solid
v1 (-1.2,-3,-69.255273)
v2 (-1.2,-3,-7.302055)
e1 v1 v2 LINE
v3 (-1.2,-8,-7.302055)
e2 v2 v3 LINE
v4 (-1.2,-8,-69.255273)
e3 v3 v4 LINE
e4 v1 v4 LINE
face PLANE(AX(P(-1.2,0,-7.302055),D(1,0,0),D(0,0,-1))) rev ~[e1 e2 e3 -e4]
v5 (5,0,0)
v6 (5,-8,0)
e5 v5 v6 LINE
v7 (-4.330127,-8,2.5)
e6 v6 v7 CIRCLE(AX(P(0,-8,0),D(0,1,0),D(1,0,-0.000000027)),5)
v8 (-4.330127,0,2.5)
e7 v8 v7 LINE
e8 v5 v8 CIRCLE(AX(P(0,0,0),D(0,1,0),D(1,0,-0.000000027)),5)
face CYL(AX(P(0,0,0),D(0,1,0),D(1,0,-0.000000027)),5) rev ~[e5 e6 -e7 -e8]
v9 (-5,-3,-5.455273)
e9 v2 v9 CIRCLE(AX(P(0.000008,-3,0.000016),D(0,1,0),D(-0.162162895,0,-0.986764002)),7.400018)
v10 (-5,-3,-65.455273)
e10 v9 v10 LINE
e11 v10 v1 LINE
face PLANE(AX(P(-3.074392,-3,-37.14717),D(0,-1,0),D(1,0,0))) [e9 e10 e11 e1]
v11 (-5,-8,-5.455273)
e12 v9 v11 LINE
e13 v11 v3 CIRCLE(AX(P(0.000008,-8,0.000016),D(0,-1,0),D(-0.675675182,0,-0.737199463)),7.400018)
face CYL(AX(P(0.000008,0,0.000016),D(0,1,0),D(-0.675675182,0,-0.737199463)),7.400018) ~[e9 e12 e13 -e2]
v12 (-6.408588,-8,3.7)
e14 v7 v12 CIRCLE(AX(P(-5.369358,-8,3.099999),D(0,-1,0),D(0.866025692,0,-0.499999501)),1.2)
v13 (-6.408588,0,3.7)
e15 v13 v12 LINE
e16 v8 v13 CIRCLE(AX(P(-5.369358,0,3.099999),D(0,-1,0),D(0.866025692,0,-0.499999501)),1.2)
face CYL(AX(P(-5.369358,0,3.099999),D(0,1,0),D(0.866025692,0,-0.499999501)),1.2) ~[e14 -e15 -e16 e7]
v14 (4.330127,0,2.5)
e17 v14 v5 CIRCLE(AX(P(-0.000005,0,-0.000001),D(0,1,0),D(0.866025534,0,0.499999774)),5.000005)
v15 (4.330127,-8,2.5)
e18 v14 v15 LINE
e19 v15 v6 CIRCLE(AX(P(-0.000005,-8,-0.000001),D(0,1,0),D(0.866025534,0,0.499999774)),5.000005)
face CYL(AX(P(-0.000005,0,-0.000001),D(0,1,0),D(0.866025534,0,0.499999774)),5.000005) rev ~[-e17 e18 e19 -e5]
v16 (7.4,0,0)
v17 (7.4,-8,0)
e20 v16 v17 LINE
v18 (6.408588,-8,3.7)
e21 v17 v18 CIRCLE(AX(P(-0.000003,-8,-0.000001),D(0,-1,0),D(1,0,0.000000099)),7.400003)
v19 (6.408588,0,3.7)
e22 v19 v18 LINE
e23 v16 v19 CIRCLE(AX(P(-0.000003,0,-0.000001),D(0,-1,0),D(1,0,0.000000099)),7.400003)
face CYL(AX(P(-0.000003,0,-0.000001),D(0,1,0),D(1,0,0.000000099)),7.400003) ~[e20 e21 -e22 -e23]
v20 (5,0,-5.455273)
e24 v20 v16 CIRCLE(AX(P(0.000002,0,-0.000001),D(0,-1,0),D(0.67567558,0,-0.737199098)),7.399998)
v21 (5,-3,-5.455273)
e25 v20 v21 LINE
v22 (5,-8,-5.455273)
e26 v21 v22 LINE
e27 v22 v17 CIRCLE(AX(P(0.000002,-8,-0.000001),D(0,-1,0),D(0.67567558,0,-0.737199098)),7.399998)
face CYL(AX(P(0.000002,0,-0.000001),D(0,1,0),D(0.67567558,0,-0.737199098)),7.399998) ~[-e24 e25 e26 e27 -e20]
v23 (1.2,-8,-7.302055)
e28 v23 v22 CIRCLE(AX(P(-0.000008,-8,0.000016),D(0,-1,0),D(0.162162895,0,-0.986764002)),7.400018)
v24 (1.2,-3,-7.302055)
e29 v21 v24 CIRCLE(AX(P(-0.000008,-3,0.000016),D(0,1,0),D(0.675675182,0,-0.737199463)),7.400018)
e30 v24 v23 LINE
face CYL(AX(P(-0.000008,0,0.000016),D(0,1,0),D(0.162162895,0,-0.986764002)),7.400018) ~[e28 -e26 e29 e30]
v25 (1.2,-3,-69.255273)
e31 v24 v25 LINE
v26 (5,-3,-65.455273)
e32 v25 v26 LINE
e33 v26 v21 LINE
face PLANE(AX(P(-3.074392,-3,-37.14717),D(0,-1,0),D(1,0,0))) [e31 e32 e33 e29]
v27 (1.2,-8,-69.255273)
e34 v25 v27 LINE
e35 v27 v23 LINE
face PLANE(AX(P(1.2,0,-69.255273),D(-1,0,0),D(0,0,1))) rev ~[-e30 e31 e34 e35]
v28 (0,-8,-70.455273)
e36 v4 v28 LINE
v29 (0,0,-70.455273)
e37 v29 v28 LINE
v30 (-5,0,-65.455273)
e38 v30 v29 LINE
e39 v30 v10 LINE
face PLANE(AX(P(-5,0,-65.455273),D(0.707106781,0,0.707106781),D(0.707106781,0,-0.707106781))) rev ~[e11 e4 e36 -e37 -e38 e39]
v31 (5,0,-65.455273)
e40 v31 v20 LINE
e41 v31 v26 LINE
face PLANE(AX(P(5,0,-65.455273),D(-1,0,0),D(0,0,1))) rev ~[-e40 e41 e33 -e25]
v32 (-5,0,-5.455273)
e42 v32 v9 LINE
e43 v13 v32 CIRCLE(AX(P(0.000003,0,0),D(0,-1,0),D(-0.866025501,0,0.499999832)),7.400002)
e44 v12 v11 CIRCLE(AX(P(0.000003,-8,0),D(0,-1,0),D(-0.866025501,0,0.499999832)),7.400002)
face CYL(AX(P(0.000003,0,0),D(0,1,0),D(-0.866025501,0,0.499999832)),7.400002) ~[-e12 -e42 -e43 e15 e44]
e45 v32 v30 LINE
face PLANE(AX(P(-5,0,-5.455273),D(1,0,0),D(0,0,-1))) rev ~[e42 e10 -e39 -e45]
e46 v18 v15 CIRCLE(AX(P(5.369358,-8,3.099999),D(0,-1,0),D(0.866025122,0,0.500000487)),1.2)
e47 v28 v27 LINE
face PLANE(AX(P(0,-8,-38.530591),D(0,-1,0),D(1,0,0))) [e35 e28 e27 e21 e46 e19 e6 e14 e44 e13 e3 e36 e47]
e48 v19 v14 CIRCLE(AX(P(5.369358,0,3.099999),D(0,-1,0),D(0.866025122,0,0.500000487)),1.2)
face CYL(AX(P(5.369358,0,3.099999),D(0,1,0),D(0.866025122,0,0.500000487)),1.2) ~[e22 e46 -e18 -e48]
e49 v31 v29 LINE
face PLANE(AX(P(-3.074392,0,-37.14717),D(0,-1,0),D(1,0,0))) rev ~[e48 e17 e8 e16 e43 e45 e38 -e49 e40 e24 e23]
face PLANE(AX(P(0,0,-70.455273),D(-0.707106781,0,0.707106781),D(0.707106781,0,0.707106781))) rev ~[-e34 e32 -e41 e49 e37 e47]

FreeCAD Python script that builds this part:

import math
import FreeCAD as App
import Part
import Sketcher

V = App.Vector

doc = App.newDocument("Part")
body = doc.addObject("PartDesign::Body", "Body")

sketch1 = body.newObject("Sketcher::SketchObject", "Sketch")
sketch1.AttachmentSupport = (doc.getObject("XZ_Plane"), [""])
sketch1.MapMode = "FlatFace"
sketch1.addGeometry(Part.ArcOfCircle(Part.Circle(V(-0.000005, -0.000001, 0), V(0, 0, 1), 5.000005), math.radians(0.000016), math.radians(29.999985)), False)
sketch1.addGeometry(Part.ArcOfCircle(Part.Circle(V(0, 0, 0), V(0, 0, 1), 5), math.radians(150.000001), math.radians(359.999998)), False)
sketch1.addGeometry(Part.ArcOfCircle(Part.Circle(V(-5.369358, 3.099999, 0), V(0, 0, 1), 1.2), math.radians(-29.999967), math.radians(149.999968)), False)
sketch1.addGeometry(Part.ArcOfCircle(Part.Circle(V(0.000003, 0, 0), V(0, 0, 1), 7.400002), math.radians(150.000011), math.radians(227.493346)), False)
sketch1.addGeometry(Part.ArcOfCircle(Part.Circle(V(0.000008, 0.000016, 0), V(0, 0, 1), 7.400018), math.radians(-132.506604), math.radians(-99.332461)), False)
sketch1.addGeometry(Part.ArcOfCircle(Part.Circle(V(0, 0.000037, 0), V(0, 0, 1), 7.400037), math.radians(-99.332371), math.radians(-80.667629)), False)
sketch1.addGeometry(Part.ArcOfCircle(Part.Circle(V(-0.000008, 0.000016, 0), V(0, 0, 1), 7.400018), math.radians(-80.667539), math.radians(-47.493396)), False)
sketch1.addGeometry(Part.ArcOfCircle(Part.Circle(V(0.000002, -0.000001, 0), V(0, 0, 1), 7.399998), math.radians(-47.493365), math.radians(0.00001)), False)
sketch1.addGeometry(Part.ArcOfCircle(Part.Circle(V(-0.000003, -0.000001, 0), V(0, 0, 1), 7.400003), math.radians(0.000006), math.radians(29.999994)), False)
sketch1.addGeometry(Part.ArcOfCircle(Part.Circle(V(5.369358, 3.099999, 0), V(0, 0, 1), 1.2), math.radians(30.000032), math.radians(209.999967)), False)
sketch1.addConstraint(Sketcher.Constraint("Coincident", 0, 1, 1, 2))
sketch1.addConstraint(Sketcher.Constraint("Coincident", 1, 1, 2, 1))
sketch1.addConstraint(Sketcher.Constraint("Coincident", 2, 2, 3, 1))
sketch1.addConstraint(Sketcher.Constraint("Coincident", 3, 2, 4, 1))
sketch1.addConstraint(Sketcher.Constraint("Coincident", 4, 2, 5, 1))
sketch1.addConstraint(Sketcher.Constraint("Coincident", 5, 2, 6, 1))
sketch1.addConstraint(Sketcher.Constraint("Coincident", 6, 2, 7, 1))
sketch1.addConstraint(Sketcher.Constraint("Coincident", 7, 2, 8, 1))
sketch1.addConstraint(Sketcher.Constraint("Coincident", 8, 2, 9, 1))
sketch1.addConstraint(Sketcher.Constraint("Coincident", 9, 2, 0, 2))
sketch1.addConstraint(Sketcher.Constraint("Coincident", 0, 3, -1, 1))
sketch1.addConstraint(Sketcher.Constraint("Coincident", 1, 3, -1, 1))
sketch1.addConstraint(Sketcher.Constraint("Coincident", 3, 3, -1, 1))
sketch1.addConstraint(Sketcher.Constraint("Coincident", 7, 3, -1, 1))
sketch1.addConstraint(Sketcher.Constraint("Coincident", 8, 3, -1, 1))
sketch1.addConstraint(Sketcher.Constraint("PointOnObject", 5, 3, -2))
sketch1.addConstraint(Sketcher.Constraint("PointOnObject", 0, 1, -1))
sketch1.addConstraint(Sketcher.Constraint("PointOnObject", 7, 2, -1))
sketch1.addConstraint(Sketcher.Constraint("Radius", 1, 5.0))
sketch1.addConstraint(Sketcher.Constraint("Radius", 2, 1.2))
sketch1.addConstraint(Sketcher.Constraint("Radius", 9, 1.2))
sketch1.addConstraint(Sketcher.Constraint("DistanceX", 3, 2, -1, 1, 5.0))
sketch1.addConstraint(Sketcher.Constraint("DistanceX", -1, 1, 6, 2, 5.0))
sketch1.addConstraint(Sketcher.Constraint("DistanceY", -1, 1, 2, 3, 3.099999))
sketch1.addConstraint(Sketcher.Constraint("DistanceY", -1, 1, 9, 3, 3.099999))
sketch1.addConstraint(Sketcher.Constraint("DistanceY", -1, 1, 1, 1, 2.5))
sketch1.addConstraint(Sketcher.Constraint("DistanceY", -1, 1, 2, 2, 3.7))
sketch1.addConstraint(Sketcher.Constraint("DistanceX", 4, 2, -1, 1, 1.2))
sketch1.addConstraint(Sketcher.Constraint("DistanceX", -1, 1, 5, 2, 1.2))
sketch1.addConstraint(Sketcher.Constraint("DistanceY", -1, 1, 8, 2, 3.7))
sketch1.addConstraint(Sketcher.Constraint("DistanceY", -1, 1, 9, 2, 2.5))
sketch1.addConstraint(Sketcher.Constraint("Radius", 4, 7.400018))
sketch1.addConstraint(Sketcher.Constraint("Radius", 5, 7.400037))
sketch1.addConstraint(Sketcher.Constraint("Radius", 6, 7.400018))
sketch1.addConstraint(Sketcher.Constraint("DistanceX", 4, 3, 9, 3, 5.36935))
pad1 = body.newObject("PartDesign::Pad", "Pad")
pad1.Profile = sketch1
pad1.Length = 8

sketch2 = body.newObject("Sketcher::SketchObject", "Sketch001")
sketch2.AttachmentSupport = (doc.getObject("XZ_Plane"), [""])
sketch2.MapMode = "FlatFace"
sketch2.addGeometry(Part.ArcOfCircle(Part.Circle(V(0, 0, 0), V(0, 0, 1), 7.4), math.radians(-133), math.radians(-99)), False)
sketch2.addGeometry(Part.LineSegment(V(-5, -5.5, 0), V(-5, -65.5, 0)), False)
sketch2.addGeometry(Part.LineSegment(V(-5, -65.5, 0), V(0, -70.5, 0)), False)
sketch2.addGeometry(Part.LineSegment(V(0, -70.5, 0), V(5, -65.5, 0)), False)
sketch2.addGeometry(Part.LineSegment(V(5, -65.5, 0), V(5, -5.5, 0)), False)
sketch2.addGeometry(Part.ArcOfCircle(Part.Circle(V(0, 0, 0), V(0, 0, 1), 7.4), math.radians(-81), math.radians(-47)), False)
sketch2.addGeometry(Part.ArcOfCircle(Part.Circle(V(0, 0, 0), V(0, 0, 1), 7.4), math.radians(-99.33), math.radians(-80.67)), False)
sketch2.addConstraint(Sketcher.Constraint("Coincident", 0, 1, 1, 1))
sketch2.addConstraint(Sketcher.Constraint("Coincident", 1, 2, 2, 1))
sketch2.addConstraint(Sketcher.Constraint("Coincident", 2, 2, 3, 1))
sketch2.addConstraint(Sketcher.Constraint("Coincident", 3, 2, 4, 1))
sketch2.addConstraint(Sketcher.Constraint("Coincident", 4, 2, 5, 2))
sketch2.addConstraint(Sketcher.Constraint("Tangent", 5, 1, 6, 2))
sketch2.addConstraint(Sketcher.Constraint("Tangent", 6, 1, 0, 2))
sketch2.addConstraint(Sketcher.Constraint("Vertical", 1))
sketch2.addConstraint(Sketcher.Constraint("Vertical", 4))
sketch2.addConstraint(Sketcher.Constraint("Equal", 0, 5))
sketch2.addConstraint(Sketcher.Constraint("Symmetric", 1, 2, 3, 2, -2))
sketch2.addConstraint(Sketcher.Constraint("Symmetric", 5, 1, 6, 1, -2))
sketch2.addConstraint(Sketcher.Constraint("PointOnObject", 2, 2, -2))
sketch2.addConstraint(Sketcher.Constraint("Perpendicular", 2, 3))
sketch2.addConstraint(Sketcher.Constraint("DistanceY", 1, 2, 1, 1, 60.0))
sketch2.addConstraint(Sketcher.Constraint("DistanceX", 0, 1, -1, 1, 5.0))
sketch2.addConstraint(Sketcher.Constraint("DistanceX", -1, 1, 5, 1, 1.2))
sketch2.addConstraint(Sketcher.Constraint("Radius", 0, 7.400018))
sketch2.addConstraint(Sketcher.Constraint("Radius", 6, 7.400037))
sketch2.addConstraint(Sketcher.Constraint("DistanceY", 0, 1, -1, 1, 5.455273))
pad2 = body.newObject("PartDesign::Pad", "Pad001")
pad2.Profile = sketch2
pad2.Length = 3

sketch3 = body.newObject("Sketcher::SketchObject", "Sketch002")
sketch3.AttachmentSupport = (doc.getObject("XZ_Plane"), [""])
sketch3.MapMode = "FlatFace"
sketch3.addGeometry(Part.ArcOfCircle(Part.Circle(V(0, 0, 0), V(0, 0, 1), 7.4), math.radians(-99.33), math.radians(-80.67)), False)
sketch3.addGeometry(Part.LineSegment(V(-1.2, -7.3, 0), V(-1.2, -69.3, 0)), False)
sketch3.addGeometry(Part.LineSegment(V(-1.2, -69.3, 0), V(0, -70.5, 0)), False)
sketch3.addGeometry(Part.LineSegment(V(0, -70.5, 0), V(1.2, -69.3, 0)), False)
sketch3.addGeometry(Part.LineSegment(V(1.2, -69.3, 0), V(1.2, -7.3, 0)), False)
sketch3.addConstraint(Sketcher.Constraint("Coincident", 0, 1, 1, 1))
sketch3.addConstraint(Sketcher.Constraint("Coincident", 1, 2, 2, 1))
sketch3.addConstraint(Sketcher.Constraint("Coincident", 2, 2, 3, 1))
sketch3.addConstraint(Sketcher.Constraint("Coincident", 3, 2, 4, 1))
sketch3.addConstraint(Sketcher.Constraint("Coincident", 4, 2, 0, 2))
sketch3.addConstraint(Sketcher.Constraint("Vertical", 1))
sketch3.addConstraint(Sketcher.Constraint("Vertical", 4))
sketch3.addConstraint(Sketcher.Constraint("Symmetric", 1, 2, 3, 2, -2))
sketch3.addConstraint(Sketcher.Constraint("PointOnObject", 0, 3, -2))
sketch3.addConstraint(Sketcher.Constraint("PointOnObject", 2, 2, -2))
sketch3.addConstraint(Sketcher.Constraint("Perpendicular", 2, 3))
sketch3.addConstraint(Sketcher.Constraint("DistanceX", 0, 1, -1, 1, 1.2))
sketch3.addConstraint(Sketcher.Constraint("Radius", 0, 7.400037))
sketch3.addConstraint(Sketcher.Constraint("DistanceY", 1, 2, 1, 1, 61.953218))
sketch3.addConstraint(Sketcher.Constraint("DistanceY", 0, 1, -1, 1, 7.302055))
pad3 = body.newObject("PartDesign::Pad", "Pad002")
pad3.Profile = sketch3
pad3.Length = 8

doc.recompute()
